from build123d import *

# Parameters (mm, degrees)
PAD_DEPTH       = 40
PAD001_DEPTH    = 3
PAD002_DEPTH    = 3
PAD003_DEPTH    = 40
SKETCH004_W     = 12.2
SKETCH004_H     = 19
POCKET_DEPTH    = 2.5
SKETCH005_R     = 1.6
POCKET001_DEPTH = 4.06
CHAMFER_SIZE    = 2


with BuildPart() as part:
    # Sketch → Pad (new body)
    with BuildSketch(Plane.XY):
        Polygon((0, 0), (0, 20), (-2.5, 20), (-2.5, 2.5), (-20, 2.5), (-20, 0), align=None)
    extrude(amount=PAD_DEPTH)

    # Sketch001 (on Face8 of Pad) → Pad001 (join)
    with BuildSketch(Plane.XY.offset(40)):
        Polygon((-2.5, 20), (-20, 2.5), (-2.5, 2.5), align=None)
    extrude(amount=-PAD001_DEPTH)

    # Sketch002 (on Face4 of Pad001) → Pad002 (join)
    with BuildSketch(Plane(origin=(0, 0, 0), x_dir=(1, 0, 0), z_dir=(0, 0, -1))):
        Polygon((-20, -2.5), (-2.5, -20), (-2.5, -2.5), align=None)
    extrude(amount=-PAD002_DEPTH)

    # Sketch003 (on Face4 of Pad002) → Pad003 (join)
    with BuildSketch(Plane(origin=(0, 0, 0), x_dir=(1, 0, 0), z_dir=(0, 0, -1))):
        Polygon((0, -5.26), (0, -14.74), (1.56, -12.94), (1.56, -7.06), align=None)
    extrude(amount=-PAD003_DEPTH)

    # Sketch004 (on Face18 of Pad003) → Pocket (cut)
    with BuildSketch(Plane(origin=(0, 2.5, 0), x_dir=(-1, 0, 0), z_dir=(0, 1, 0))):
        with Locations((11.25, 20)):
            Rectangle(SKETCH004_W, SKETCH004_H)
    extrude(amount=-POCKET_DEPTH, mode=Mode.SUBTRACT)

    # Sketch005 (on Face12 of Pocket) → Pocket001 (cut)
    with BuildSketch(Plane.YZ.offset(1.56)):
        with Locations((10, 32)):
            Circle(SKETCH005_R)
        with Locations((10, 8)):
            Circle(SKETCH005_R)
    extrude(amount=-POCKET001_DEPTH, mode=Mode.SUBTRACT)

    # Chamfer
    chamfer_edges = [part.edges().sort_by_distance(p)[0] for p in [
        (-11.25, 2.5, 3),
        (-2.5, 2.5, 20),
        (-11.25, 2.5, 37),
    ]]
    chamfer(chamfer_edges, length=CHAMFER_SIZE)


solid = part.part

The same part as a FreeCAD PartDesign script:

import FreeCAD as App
import Part
import Sketcher
from FreeCAD import Vector


def edges_at(feature, points):
    """Names of the edges that pass closest to the given points."""
    edges = feature.Shape.Edges
    near = lambda p: min(range(len(edges)), key=lambda i: edges[i].distToShape(Part.Vertex(*p))[0])
    return sorted({f"Edge{near(p) + 1}" for p in points})


def add_polygon(sketch, points):
    """Adds a closed chain of lines whose ends are joined by coincident constraints."""
    first, n = sketch.GeometryCount, len(points)
    for a, b in zip(points, points[1:] + points[:1]):
        sketch.addGeometry(Part.LineSegment(App.Vector(*a, 0), App.Vector(*b, 0)), False)
    for i in range(n):
        sketch.addConstraint(Sketcher.Constraint("Coincident", first + i, 2, first + (i + 1) % n, 1))

doc = App.newDocument("Part")
body = doc.addObject("PartDesign::Body", "Body")

sketch1 = body.newObject("Sketcher::SketchObject", "Sketch")
sketch1.AttachmentSupport = (doc.getObject("XY_Plane"), [""])
sketch1.MapMode = "FlatFace"
add_polygon(sketch1, [(0, 0), (0, 20), (-2.5, 20), (-2.5, 2.5), (-20, 2.5), (-20, 0)])
sketch1.addConstraint(Sketcher.Constraint("Vertical", 0))
sketch1.addConstraint(Sketcher.Constraint("Horizontal", 1))
sketch1.addConstraint(Sketcher.Constraint("Vertical", 2))
sketch1.addConstraint(Sketcher.Constraint("Horizontal", 3))
sketch1.addConstraint(Sketcher.Constraint("Vertical", 4))
sketch1.addConstraint(Sketcher.Constraint("Horizontal", 5))
sketch1.addConstraint(Sketcher.Constraint("Coincident", 5, 2, -1, 1))
sketch1.addConstraint(Sketcher.Constraint("Equal", 5, 0))
sketch1.addConstraint(Sketcher.Constraint("Equal", 3, 2))
sketch1.addConstraint(Sketcher.Constraint("DistanceX", 5, 1, 5, 2, 20.0))
sketch1.addConstraint(Sketcher.Constraint("DistanceX", 1, 2, 1, 1, 2.5))
pad1 = body.newObject("PartDesign::Pad", "Pad")
pad1.Profile = sketch1
pad1.Length = 40

sketch2 = body.newObject("Sketcher::SketchObject", "Sketch001")
sketch2.AttachmentSupport = (doc.getObject("XY_Plane"), [""])
sketch2.MapMode = "FlatFace"
sketch2.AttachmentOffset = App.Placement(Vector(0, 0, 40), App.Rotation())
add_polygon(sketch2, [(-2, 20), (-20, 2), (-2, 2)])
sketch2.addConstraint(Sketcher.Constraint("Horizontal", 1))
sketch2.addConstraint(Sketcher.Constraint("Vertical", 2))
sketch2.addConstraint(Sketcher.Constraint("Equal", 1, 2))
sketch2.addConstraint(Sketcher.Constraint("DistanceX", 1, 1, 1, 2, 17.5))
sketch2.addConstraint(Sketcher.Constraint("DistanceX", 0, 2, -1, 1, 20.0))
sketch2.addConstraint(Sketcher.Constraint("DistanceY", -1, 1, 2, 2, 20.0))
pad2 = body.newObject("PartDesign::Pad", "Pad001")
pad2.Profile = sketch2
pad2.Length = 3
pad2.Reversed = True

sketch3 = body.newObject("Sketcher::SketchObject", "Sketch002")
sketch3.AttachmentSupport = (doc.getObject("XY_Plane"), [""])
sketch3.MapMode = "FlatFace"
add_polygon(sketch3, [(-20, 2), (-2, 20), (-2, 2)])
sketch3.addConstraint(Sketcher.Constraint("Vertical", 1))
sketch3.addConstraint(Sketcher.Constraint("Horizontal", 2))
sketch3.addConstraint(Sketcher.Constraint("Equal", 2, 1))
sketch3.addConstraint(Sketcher.Constraint("DistanceX", 2, 2, 2, 1, 17.5))
sketch3.addConstraint(Sketcher.Constraint("DistanceY", -1, 1, 0, 2, 20.0))
sketch3.addConstraint(Sketcher.Constraint("DistanceX", 2, 2, -1, 1, 20.0))
pad3 = body.newObject("PartDesign::Pad", "Pad002")
pad3.Profile = sketch3
pad3.Length = 3

sketch4 = body.newObject("Sketcher::SketchObject", "Sketch003")
sketch4.AttachmentSupport = (doc.getObject("XY_Plane"), [""])
sketch4.MapMode = "FlatFace"
add_polygon(sketch4, [(0, 5.3), (0, 14.7), (1.6, 12.9), (1.6, 7.1)])
sketch4.addConstraint(Sketcher.Constraint("Vertical", 0))
sketch4.addConstraint(Sketcher.Constraint("Vertical", 2))
sketch4.addConstraint(Sketcher.Constraint("PointOnObject", 0, 2, -2))
sketch4.addConstraint(Sketcher.Constraint("Equal", 1, 3))
sketch4.addConstraint(Sketcher.Constraint("DistanceY", 0, 1, 0, 2, 9.48))
sketch4.addConstraint(Sketcher.Constraint("DistanceY", 2, 2, 2, 1, 5.88))
sketch4.addConstraint(Sketcher.Constraint("DistanceY", -1, 1, 0, 2, 14.74))
sketch4.addConstraint(Sketcher.Constraint("DistanceX", -1, 1, 1, 2, 1.56))
pad4 = body.newObject("PartDesign::Pad", "Pad003")
pad4.Profile = sketch4
pad4.Length = 40

sketch5 = body.newObject("Sketcher::SketchObject", "Sketch004")
sketch5.AttachmentSupport = (doc.getObject("XZ_Plane"), [""])
sketch5.MapMode = "FlatFace"
sketch5.AttachmentOffset = App.Placement(Vector(0, 0, -2.5), App.Rotation())
add_polygon(sketch5, [(-5, 30), (-5, 10), (-17, 10), (-17, 30)])
sketch5.addConstraint(Sketcher.Constraint("Vertical", 0))
sketch5.addConstraint(Sketcher.Constraint("Horizontal", 1))
sketch5.addConstraint(Sketcher.Constraint("Vertical", 2))
sketch5.addConstraint(Sketcher.Constraint("Horizontal", 3))
sketch5.addConstraint(Sketcher.Constraint("DistanceY", 0, 2, 0, 1, 19.0))
sketch5.addConstraint(Sketcher.Constraint("DistanceX", 1, 2, 1, 1, 12.2))
sketch5.addConstraint(Sketcher.Constraint("DistanceY", -1, 1, 0, 2, 10.5))
sketch5.addConstraint(Sketcher.Constraint("DistanceX", 0, 2, -1, 1, 5.15))
pocket1 = body.newObject("PartDesign::Pocket", "Pocket")
pocket1.Profile = sketch5
pocket1.Length = 2.5
pocket1.Reversed = True

sketch6 = body.newObject("Sketcher::SketchObject", "Sketch005")
sketch6.AttachmentSupport = (doc.getObject("YZ_Plane"), [""])
sketch6.MapMode = "FlatFace"
sketch6.AttachmentOffset = App.Placement(Vector(0, 0, 1.56), App.Rotation())
sketch6.addGeometry(Part.Circle(Vector(10, 32, 0), Vector(0, 0, 1), 1.6), False)
sketch6.addGeometry(Part.Circle(Vector(10, 8, 0), Vector(0, 0, 1), 1.6), False)
sketch6.addConstraint(Sketcher.Constraint("Equal", 0, 1))
sketch6.addConstraint(Sketcher.Constraint("Vertical", 0, 3, 1, 3))
sketch6.addConstraint(Sketcher.Constraint("Diameter", 0, 3.2))
sketch6.addConstraint(Sketcher.Constraint("DistanceX", -1, 1, 0, 3, 10.0))
sketch6.addConstraint(Sketcher.Constraint("DistanceY", -1, 1, 0, 3, 32.0))
sketch6.addConstraint(Sketcher.Constraint("DistanceY", -1, 1, 1, 3, 8.0))
pocket2 = body.newObject("PartDesign::Pocket", "Pocket001")
pocket2.Profile = sketch6
pocket2.Length = 4.06
doc.recompute()

chamfer = body.newObject("PartDesign::Chamfer", "Chamfer")
chamfer.Base = (pocket2, edges_at(pocket2, [(-11.25, 2.5, 3), (-2.5, 2.5, 20), (-11.25, 2.5, 37)]))
chamfer.Size = 2

doc.recompute()
